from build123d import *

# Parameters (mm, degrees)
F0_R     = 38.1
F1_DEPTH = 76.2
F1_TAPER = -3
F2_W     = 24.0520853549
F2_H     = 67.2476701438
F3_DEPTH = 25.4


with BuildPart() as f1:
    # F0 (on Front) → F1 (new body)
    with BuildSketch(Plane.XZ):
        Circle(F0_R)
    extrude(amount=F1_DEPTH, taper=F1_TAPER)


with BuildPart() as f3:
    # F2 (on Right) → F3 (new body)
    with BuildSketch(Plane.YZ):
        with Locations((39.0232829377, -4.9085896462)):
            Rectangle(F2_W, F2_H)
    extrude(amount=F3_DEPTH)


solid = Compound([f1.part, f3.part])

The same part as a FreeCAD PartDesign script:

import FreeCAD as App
import Part
import Sketcher
Q = App.Units.Quantity

doc = App.newDocument("Part")
params = doc.addObject("Spreadsheet::Sheet", "Params")
for row, (alias, value) in enumerate([
    ("sketch1_diameter", "3 in"),
    ("pad1_length", "3 in"),
    ("pad1_taper", "3 deg"),
    ("pad2_length", "1 in"),
], start=1):
    params.set(f"A{row}", alias)
    params.set(f"B{row}", "=" + value)
    params.setAlias(f"B{row}", alias)

body = doc.addObject("PartDesign::Body", "Body")

sketch1 = body.newObject("Sketcher::SketchObject", "Sketch")
sketch1.AttachmentSupport = (doc.getObject("XZ_Plane"), [""])
sketch1.MapMode = "FlatFace"
sketch1.addGeometry(Part.Circle(App.Vector(0, 0, 0), App.Vector(0, 0, 1), 38), False)
sketch1.addConstraint([
    Sketcher.Constraint("Coincident", 0, 3, -1, 1),
    Sketcher.Constraint("Diameter", 0, Q("3 in")),
])
sketch1.setExpression("Constraints[1]", "Params.sketch1_diameter")
pad1 = body.newObject("PartDesign::Pad", "Pad")
pad1.Profile = sketch1
pad1.setExpression("Length", "Params.pad1_length")
pad1.setExpression("TaperAngle", "Params.pad1_taper")
body2 = doc.addObject("PartDesign::Body", "Body001")

sketch2 = body2.newObject("Sketcher::SketchObject", "Sketch001")
sketch2.AttachmentSupport = (doc.getObject("YZ_Plane001"), [""])
sketch2.MapMode = "FlatFace"
sketch2.addGeometry([
    Part.LineSegment(App.Vector(27, 29, 0), App.Vector(27, -39, 0)),
    Part.LineSegment(App.Vector(27, -39, 0), App.Vector(51, -39, 0)),
    Part.LineSegment(App.Vector(51, -39, 0), App.Vector(51, 29, 0)),
    Part.LineSegment(App.Vector(51, 29, 0), App.Vector(27, 29, 0)),
], False)
sketch2.addConstraint([
    Sketcher.Constraint("Coincident", 0, 2, 1, 1),
    Sketcher.Constraint("Coincident", 1, 2, 2, 1),
    Sketcher.Constraint("Coincident", 2, 2, 3, 1),
    Sketcher.Constraint("Coincident", 3, 2, 0, 1),
    Sketcher.Constraint("Vertical", 0),
    Sketcher.Constraint("Horizontal", 1),
    Sketcher.Constraint("Vertical", 2),
    Sketcher.Constraint("Horizontal", 3),
    Sketcher.Constraint("DistanceY", 0, 2, 0, 1, Q("67.24767 mm")),
    Sketcher.Constraint("DistanceX", 1, 1, 1, 2, Q("24.052085 mm")),
    Sketcher.Constraint("DistanceX", -1, 1, 0, 2, Q("26.99724 mm")),
    Sketcher.Constraint("DistanceY", 0, 2, -1, 1, Q("38.532425 mm")),
])
pad2 = body2.newObject("PartDesign::Pad", "Pad001")
pad2.Profile = sketch2
pad2.setExpression("Length", "Params.pad2_length")

doc.recompute()
